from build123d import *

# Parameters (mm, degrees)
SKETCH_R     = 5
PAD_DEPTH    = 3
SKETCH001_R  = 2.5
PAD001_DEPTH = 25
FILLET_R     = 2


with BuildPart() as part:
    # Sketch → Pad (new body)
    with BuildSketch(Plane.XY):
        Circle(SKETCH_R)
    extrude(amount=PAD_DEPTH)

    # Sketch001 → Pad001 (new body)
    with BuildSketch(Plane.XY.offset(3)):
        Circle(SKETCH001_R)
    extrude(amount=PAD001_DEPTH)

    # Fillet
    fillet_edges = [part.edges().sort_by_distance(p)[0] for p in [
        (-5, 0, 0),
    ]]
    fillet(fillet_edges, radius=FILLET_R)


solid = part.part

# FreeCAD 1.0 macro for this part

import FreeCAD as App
import Part
import Sketcher

V = App.Vector
Q = App.Units.Quantity


def edges_at(feature, points):
    """Names of the edges that pass closest to the given points."""
    edges = feature.Shape.Edges
    near = lambda p: min(range(len(edges)), key=lambda i: edges[i].distToShape(Part.Vertex(*p))[0])
    return sorted({f"Edge{near(p) + 1}" for p in points})

doc = App.newDocument("Part")
body = doc.addObject("PartDesign::Body", "Body")

# Sketch on XY plane
sketch1 = body.newObject("Sketcher::SketchObject", "Sketch")
sketch1.AttachmentSupport = (doc.getObject("XY_Plane"), [""])
sketch1.MapMode = "FlatFace"
sketch1.addGeometry(Part.Circle(V(0, 0, 0), V(0, 0, 1), 5), False)
sketch1.addConstraint([
    Sketcher.Constraint("Coincident", 0, 3, -1, 1),
    Sketcher.Constraint("Diameter", 0, Q("10 mm")),
])
pad1 = body.newObject("PartDesign::Pad", "Pad")
pad1.Profile = sketch1
pad1.Length = 3

# Sketch on XY plane
sketch2 = body.newObject("Sketcher::SketchObject", "Sketch001")
sketch2.AttachmentSupport = (doc.getObject("XY_Plane"), [""])
sketch2.MapMode = "FlatFace"
sketch2.AttachmentOffset = App.Placement(V(0, 0, 3), App.Rotation())
sketch2.addGeometry(Part.Circle(V(0, 0, 0), V(0, 0, 1), 2.5), False)
sketch2.addConstraint([
    Sketcher.Constraint("Coincident", 0, 3, -1, 1),
    Sketcher.Constraint("Diameter", 0, Q("5 mm")),
])
pad2 = body.newObject("PartDesign::Pad", "Pad001")
pad2.Profile = sketch2
pad2.Length = 25
doc.recompute()

fillet = body.newObject("PartDesign::Fillet", "Fillet")
fillet.Base = (pad2, edges_at(pad2, [(-5, 0, 0)]))
fillet.Radius = 2

doc.recompute()
